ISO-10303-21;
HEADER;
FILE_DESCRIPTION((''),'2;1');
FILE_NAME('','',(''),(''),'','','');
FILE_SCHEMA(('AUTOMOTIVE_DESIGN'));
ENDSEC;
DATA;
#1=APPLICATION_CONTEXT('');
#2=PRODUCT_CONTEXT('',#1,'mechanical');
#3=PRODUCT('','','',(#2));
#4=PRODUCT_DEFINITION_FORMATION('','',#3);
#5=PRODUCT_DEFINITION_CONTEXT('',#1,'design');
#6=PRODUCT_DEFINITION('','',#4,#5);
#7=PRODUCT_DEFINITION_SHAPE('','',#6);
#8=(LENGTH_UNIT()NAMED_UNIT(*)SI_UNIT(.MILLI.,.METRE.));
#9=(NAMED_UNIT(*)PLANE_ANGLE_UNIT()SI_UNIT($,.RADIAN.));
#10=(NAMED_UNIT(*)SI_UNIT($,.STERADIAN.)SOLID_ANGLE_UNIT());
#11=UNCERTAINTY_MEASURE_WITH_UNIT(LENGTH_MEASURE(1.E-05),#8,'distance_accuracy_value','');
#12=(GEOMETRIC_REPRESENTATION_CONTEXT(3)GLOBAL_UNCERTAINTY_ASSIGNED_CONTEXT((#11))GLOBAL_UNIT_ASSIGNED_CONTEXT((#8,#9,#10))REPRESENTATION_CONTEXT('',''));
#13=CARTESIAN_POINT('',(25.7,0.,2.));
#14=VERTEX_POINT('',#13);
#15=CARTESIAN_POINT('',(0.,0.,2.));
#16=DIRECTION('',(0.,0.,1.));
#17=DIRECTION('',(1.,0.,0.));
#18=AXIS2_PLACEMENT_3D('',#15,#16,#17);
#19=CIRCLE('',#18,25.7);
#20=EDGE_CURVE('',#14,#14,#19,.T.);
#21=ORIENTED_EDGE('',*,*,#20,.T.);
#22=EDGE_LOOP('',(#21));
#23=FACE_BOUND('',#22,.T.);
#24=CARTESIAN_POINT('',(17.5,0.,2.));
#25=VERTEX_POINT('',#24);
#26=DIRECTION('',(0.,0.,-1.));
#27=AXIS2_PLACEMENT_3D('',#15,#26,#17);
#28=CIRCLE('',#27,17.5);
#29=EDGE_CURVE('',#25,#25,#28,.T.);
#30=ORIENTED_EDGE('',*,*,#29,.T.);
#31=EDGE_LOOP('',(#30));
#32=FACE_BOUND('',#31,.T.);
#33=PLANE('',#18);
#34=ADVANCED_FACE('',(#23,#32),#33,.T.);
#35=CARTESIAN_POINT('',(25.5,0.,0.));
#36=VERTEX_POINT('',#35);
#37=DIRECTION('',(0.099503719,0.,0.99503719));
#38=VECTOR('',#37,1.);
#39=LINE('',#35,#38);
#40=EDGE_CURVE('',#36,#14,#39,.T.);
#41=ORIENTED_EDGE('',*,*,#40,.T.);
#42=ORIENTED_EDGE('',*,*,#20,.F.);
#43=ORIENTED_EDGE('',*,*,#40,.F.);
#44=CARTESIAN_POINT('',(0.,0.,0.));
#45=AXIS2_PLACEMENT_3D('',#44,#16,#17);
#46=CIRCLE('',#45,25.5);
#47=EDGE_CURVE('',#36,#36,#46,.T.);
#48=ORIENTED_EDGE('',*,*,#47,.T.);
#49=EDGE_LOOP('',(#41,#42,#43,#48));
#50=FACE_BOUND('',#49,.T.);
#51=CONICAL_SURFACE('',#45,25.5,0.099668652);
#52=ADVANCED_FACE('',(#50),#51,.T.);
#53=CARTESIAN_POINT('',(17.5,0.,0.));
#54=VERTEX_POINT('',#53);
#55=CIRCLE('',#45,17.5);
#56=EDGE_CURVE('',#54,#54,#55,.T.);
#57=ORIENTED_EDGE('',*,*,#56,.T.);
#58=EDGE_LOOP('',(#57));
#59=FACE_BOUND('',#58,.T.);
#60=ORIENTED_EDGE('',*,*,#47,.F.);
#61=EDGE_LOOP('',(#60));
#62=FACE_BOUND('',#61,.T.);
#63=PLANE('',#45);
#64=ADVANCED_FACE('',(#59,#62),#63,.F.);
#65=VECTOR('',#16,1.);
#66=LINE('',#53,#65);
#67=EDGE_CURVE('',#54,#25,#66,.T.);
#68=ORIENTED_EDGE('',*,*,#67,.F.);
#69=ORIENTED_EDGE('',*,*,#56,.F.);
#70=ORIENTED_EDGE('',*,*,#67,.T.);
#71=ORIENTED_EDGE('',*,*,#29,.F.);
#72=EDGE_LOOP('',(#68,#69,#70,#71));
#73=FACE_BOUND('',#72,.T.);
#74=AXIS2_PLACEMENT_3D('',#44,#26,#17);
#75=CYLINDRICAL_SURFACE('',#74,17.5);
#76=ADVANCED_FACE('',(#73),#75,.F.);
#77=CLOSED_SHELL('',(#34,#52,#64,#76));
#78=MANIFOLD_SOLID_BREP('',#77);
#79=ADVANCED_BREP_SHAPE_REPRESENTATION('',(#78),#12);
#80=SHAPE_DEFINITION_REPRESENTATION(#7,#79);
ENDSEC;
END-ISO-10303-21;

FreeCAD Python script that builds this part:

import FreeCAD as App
import Part
import Sketcher
from FreeCAD import Vector

doc = App.newDocument("Part")
params = doc.addObject("Spreadsheet::Sheet", "Params")
for row, (alias, value) in enumerate([
    ("sketch1_diameter", "35 mm"),
    ("pad1_length", "10 mm"),
    ("sketch2_height", "2 mm"),
    ("sketch2_width", "25.5 mm"),
    ("sketch2_width2", "25.7 mm"),
    ("revolution_angle", "360 deg"),
], start=1):
    params.set(f"A{row}", alias)
    params.set(f"B{row}", "=" + value)
    params.setAlias(f"B{row}", alias)

body = doc.addObject("PartDesign::Body", "Body")

# Sketch on XY plane
sketch1 = doc.addObject("Sketcher::SketchObject", "Sketch")
body.addObject(sketch1)
sketch1.AttachmentSupport = (doc.XY_Plane, [""])
sketch1.MapMode = "FlatFace"
sketch1.addGeometry(Part.Circle(Vector(0, 0, 0), Vector(0, 0, 1), 17.5), False)
sketch1.addConstraint([
    Sketcher.Constraint("Coincident", 0, 3, -1, 1),
    Sketcher.Constraint("Diameter", 0, 35.0),
])
sketch1.setExpression("Constraints[1]", "Params.sketch1_diameter")
pad1 = doc.addObject("PartDesign::Pad", "Pad")
body.addObject(pad1)
pad1.Profile = sketch1
pad1.setExpression("Length", "Params.pad1_length")
body2 = doc.addObject("PartDesign::Body", "Body001")

# Sketch on XZ plane
sketch2 = doc.addObject("Sketcher::SketchObject", "Sketch001")
body2.addObject(sketch2)
sketch2.AttachmentSupport = (doc.getObject("XZ_Plane001"), [""])
sketch2.MapMode = "FlatFace"
sketch2.addGeometry([
    Part.LineSegment(Vector(0, 0, 0), Vector(25.5, 0, 0)),
    Part.LineSegment(Vector(25.5, 0, 0), Vector(25.7, 2, 0)),
    Part.LineSegment(Vector(25.7, 2, 0), Vector(0, 2, 0)),
    Part.LineSegment(Vector(0, 2, 0), Vector(0, 0, 0)),
], False)
sketch2.addConstraint([
    Sketcher.Constraint("Coincident", 0, 2, 1, 1),
    Sketcher.Constraint("Coincident", 1, 2, 2, 1),
    Sketcher.Constraint("Coincident", 2, 2, 3, 1),
    Sketcher.Constraint("Coincident", 3, 2, 0, 1),
    Sketcher.Constraint("Horizontal", 0),
    Sketcher.Constraint("Horizontal", 2),
    Sketcher.Constraint("Vertical", 3),
    Sketcher.Constraint("Coincident", 3, 2, -1, 1),
    Sketcher.Constraint("DistanceY", 3, 2, 3, 1, 2.0),
    Sketcher.Constraint("DistanceX", 0, 1, 0, 2, 25.5),
    Sketcher.Constraint("DistanceX", 2, 2, 2, 1, 25.7),
])
sketch2.setExpression("Constraints[8]", "Params.sketch2_height")
sketch2.setExpression("Constraints[9]", "Params.sketch2_width")
sketch2.setExpression("Constraints[10]", "Params.sketch2_width2")
revolution = doc.addObject("PartDesign::Revolution", "Revolution")
body2.addObject(revolution)
revolution.Profile = sketch2
revolution.ReferenceAxis = (sketch2, ["V_Axis"])
revolution.setExpression("Angle", "Params.revolution_angle")
doc.recompute()

boolean = doc.addObject("PartDesign::Boolean", "Boolean")
body2.addObject(boolean)
boolean.Type = "Cut"
boolean.addObjects([body])

doc.recompute()
